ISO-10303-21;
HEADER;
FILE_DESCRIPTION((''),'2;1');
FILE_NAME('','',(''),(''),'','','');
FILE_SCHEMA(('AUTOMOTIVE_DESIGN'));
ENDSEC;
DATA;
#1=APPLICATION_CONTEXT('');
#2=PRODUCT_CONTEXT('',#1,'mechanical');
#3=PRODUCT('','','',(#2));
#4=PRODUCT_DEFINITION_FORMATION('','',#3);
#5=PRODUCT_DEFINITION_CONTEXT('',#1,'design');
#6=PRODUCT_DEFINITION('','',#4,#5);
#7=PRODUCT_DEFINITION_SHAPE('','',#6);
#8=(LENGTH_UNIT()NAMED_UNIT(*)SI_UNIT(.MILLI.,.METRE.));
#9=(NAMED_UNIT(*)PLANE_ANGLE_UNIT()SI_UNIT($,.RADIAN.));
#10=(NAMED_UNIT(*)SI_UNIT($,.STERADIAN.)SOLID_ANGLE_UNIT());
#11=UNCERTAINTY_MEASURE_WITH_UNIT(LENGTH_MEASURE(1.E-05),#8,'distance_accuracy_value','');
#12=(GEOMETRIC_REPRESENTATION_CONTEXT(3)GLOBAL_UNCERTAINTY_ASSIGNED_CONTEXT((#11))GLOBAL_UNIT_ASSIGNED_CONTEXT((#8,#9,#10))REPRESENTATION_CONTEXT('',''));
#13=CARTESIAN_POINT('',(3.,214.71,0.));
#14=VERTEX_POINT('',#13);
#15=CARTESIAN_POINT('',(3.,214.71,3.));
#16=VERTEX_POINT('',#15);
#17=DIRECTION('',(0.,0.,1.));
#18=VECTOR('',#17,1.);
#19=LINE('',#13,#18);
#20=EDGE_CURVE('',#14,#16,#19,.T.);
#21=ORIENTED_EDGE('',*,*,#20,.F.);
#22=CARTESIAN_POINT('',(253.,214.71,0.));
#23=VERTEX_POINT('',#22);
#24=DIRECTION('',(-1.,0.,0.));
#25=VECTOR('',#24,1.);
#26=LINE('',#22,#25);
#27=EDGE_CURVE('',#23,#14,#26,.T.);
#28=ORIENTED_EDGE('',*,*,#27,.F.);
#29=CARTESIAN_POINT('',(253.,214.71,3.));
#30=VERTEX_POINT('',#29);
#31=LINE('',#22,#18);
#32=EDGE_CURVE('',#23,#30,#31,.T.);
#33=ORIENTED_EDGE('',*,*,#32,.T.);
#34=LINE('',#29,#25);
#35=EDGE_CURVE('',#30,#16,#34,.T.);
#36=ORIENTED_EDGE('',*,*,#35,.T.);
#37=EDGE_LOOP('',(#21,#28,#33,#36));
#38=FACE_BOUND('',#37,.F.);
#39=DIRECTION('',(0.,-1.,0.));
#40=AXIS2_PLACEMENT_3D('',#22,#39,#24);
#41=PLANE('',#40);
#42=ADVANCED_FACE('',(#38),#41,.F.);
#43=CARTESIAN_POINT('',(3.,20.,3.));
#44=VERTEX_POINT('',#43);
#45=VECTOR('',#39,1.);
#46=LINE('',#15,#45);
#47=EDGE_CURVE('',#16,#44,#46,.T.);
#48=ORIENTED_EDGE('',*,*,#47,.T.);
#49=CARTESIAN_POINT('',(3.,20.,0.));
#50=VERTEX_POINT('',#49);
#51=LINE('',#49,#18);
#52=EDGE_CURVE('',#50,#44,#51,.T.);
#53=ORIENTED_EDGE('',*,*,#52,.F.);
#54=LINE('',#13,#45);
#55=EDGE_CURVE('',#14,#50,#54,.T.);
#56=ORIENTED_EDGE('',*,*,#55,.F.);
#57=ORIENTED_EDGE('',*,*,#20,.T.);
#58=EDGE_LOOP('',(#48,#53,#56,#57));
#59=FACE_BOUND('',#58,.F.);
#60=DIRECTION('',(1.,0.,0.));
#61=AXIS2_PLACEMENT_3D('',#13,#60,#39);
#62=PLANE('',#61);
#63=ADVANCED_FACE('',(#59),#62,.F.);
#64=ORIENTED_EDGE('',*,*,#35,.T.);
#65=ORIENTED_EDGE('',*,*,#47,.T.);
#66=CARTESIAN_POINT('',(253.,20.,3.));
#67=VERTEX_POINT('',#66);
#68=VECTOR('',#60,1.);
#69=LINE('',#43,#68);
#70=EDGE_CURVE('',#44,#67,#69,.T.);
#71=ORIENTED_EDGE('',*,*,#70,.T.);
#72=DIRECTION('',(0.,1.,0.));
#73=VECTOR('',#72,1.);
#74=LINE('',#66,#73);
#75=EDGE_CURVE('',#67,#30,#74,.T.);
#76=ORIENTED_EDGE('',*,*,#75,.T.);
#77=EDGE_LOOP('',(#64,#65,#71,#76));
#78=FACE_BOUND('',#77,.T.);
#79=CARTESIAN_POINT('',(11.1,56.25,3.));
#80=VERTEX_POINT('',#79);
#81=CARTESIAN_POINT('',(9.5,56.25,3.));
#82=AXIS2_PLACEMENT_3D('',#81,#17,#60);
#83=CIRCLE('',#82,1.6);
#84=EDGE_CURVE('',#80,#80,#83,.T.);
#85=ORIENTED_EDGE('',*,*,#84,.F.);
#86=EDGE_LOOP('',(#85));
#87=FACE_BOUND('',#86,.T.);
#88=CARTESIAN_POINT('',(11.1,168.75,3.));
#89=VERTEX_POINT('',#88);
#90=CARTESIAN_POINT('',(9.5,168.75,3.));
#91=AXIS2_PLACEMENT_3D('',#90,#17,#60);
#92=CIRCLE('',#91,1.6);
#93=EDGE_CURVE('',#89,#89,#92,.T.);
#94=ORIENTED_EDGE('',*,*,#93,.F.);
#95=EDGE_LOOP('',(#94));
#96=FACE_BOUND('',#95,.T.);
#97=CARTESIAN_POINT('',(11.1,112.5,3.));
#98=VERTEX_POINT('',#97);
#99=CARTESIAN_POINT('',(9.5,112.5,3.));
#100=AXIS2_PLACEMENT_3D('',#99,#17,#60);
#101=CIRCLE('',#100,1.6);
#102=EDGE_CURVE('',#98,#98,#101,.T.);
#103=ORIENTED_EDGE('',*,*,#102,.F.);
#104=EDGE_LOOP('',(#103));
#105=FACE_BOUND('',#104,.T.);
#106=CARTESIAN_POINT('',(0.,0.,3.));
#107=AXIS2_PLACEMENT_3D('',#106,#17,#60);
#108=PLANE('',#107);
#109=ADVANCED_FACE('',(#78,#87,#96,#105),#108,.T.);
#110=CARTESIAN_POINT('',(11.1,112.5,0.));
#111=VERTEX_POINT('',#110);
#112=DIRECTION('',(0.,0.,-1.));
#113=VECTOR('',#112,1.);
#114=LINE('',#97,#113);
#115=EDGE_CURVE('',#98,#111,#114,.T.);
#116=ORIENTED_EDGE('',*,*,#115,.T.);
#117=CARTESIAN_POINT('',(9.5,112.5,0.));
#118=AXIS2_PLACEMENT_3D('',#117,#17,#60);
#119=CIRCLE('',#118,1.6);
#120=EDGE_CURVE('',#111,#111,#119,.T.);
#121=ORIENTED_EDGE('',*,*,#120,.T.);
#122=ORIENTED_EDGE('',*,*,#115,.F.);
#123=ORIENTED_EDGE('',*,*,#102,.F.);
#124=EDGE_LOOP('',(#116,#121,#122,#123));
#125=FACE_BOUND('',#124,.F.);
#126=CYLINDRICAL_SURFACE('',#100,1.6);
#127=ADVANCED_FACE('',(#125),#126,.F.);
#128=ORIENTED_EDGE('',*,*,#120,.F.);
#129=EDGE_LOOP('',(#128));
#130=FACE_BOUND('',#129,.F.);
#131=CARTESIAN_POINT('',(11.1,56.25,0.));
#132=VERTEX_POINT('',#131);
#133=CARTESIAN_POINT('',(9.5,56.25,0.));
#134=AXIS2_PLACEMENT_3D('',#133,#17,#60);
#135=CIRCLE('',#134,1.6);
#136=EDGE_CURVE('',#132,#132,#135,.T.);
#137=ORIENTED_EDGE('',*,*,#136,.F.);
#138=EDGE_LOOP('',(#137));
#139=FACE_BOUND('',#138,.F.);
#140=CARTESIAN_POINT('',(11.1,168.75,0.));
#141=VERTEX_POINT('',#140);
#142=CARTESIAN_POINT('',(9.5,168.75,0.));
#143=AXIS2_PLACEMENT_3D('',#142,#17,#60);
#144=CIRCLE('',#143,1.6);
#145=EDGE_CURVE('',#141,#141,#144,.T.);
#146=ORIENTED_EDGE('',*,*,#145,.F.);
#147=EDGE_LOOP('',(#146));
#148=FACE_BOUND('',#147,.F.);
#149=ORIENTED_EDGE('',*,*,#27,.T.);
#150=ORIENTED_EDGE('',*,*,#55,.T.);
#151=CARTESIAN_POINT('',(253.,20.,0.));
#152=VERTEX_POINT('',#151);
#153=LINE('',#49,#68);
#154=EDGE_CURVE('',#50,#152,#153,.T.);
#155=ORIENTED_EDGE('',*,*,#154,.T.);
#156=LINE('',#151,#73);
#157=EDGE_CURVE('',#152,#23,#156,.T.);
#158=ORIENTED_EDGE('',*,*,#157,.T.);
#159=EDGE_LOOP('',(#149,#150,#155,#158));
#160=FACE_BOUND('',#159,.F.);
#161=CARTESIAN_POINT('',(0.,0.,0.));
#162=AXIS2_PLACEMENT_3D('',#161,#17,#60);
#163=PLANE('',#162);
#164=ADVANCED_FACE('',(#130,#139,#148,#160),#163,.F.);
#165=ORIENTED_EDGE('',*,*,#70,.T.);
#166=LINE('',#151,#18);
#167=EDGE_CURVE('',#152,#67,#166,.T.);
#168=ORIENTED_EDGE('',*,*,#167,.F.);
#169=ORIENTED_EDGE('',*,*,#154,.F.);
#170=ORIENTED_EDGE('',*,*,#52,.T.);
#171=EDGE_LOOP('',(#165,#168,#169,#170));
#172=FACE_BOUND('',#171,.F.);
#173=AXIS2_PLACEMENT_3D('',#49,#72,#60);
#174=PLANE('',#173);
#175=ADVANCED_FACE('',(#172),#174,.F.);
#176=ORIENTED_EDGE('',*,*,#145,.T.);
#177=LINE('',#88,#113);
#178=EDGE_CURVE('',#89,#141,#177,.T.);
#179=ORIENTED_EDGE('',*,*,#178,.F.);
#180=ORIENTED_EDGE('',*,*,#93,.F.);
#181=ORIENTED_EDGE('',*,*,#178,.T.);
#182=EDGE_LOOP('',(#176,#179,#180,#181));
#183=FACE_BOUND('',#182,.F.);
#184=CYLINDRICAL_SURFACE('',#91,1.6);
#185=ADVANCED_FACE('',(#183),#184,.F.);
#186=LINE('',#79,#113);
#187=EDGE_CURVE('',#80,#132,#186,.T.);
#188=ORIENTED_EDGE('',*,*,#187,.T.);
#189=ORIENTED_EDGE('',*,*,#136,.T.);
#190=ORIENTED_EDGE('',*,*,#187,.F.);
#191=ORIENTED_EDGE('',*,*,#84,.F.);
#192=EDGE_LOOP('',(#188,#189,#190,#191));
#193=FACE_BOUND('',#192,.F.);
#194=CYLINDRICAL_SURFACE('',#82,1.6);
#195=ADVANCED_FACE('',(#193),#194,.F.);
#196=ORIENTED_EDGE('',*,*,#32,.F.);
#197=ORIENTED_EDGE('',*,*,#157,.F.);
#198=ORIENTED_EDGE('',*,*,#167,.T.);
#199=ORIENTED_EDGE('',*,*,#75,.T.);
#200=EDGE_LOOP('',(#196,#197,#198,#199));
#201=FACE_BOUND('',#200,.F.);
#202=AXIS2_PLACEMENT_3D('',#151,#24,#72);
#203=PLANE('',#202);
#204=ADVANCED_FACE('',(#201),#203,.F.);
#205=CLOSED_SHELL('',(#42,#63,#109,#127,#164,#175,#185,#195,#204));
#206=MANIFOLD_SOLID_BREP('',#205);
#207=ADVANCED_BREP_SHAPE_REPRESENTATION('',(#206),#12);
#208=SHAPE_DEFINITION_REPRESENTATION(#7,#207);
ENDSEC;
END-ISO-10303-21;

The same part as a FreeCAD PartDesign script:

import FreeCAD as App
import Part
import Sketcher
from FreeCAD import Vector

doc = App.newDocument("Part")
body = doc.addObject("PartDesign::Body", "Body")

sketch1 = body.newObject("Sketcher::SketchObject", "Sketch")
sketch1.AttachmentSupport = (doc.getObject("XY_Plane"), [""])
sketch1.MapMode = "FlatFace"
sketch1.addGeometry(Part.LineSegment(Vector(3, 215, 0), Vector(3, 20, 0)), False)
sketch1.addGeometry(Part.LineSegment(Vector(3, 20, 0), Vector(253, 20, 0)), False)
sketch1.addGeometry(Part.LineSegment(Vector(253, 20, 0), Vector(253, 215, 0)), False)
sketch1.addGeometry(Part.LineSegment(Vector(253, 215, 0), Vector(3, 215, 0)), False)
sketch1.addConstraint(Sketcher.Constraint("Coincident", 0, 2, 1, 1))
sketch1.addConstraint(Sketcher.Constraint("Coincident", 1, 2, 2, 1))
sketch1.addConstraint(Sketcher.Constraint("Coincident", 2, 2, 3, 1))
sketch1.addConstraint(Sketcher.Constraint("Coincident", 3, 2, 0, 1))
sketch1.addConstraint(Sketcher.Constraint("Vertical", 0))
sketch1.addConstraint(Sketcher.Constraint("Horizontal", 1))
sketch1.addConstraint(Sketcher.Constraint("Vertical", 2))
sketch1.addConstraint(Sketcher.Constraint("Horizontal", 3))
sketch1.addConstraint(Sketcher.Constraint("DistanceX", 1, 1, 1, 2, 250.0))
sketch1.addConstraint(Sketcher.Constraint("DistanceX", -1, 1, 0, 2, 3.0))
sketch1.addConstraint(Sketcher.Constraint("DistanceY", -1, 1, 0, 2, 20.0))
sketch1.addConstraint(Sketcher.Constraint("DistanceY", 0, 2, 0, 1, 194.71))
pad1 = body.newObject("PartDesign::Pad", "Pad")
pad1.Profile = sketch1
pad1.Length = 3

sketch2 = body.newObject("Sketcher::SketchObject", "Sketch001")
sketch2.AttachmentSupport = (doc.getObject("XY_Plane"), [""])
sketch2.MapMode = "FlatFace"
sketch2.AttachmentOffset = App.Placement(Vector(0, 0, 3), App.Rotation())
sketch2.addGeometry(Part.Circle(Vector(9.5, 168.8, 0), Vector(0, 0, 1), 1.6), False)
sketch2.addGeometry(Part.Circle(Vector(9.5, 112.5, 0), Vector(0, 0, 1), 1.6), False)
sketch2.addGeometry(Part.Circle(Vector(9.5, 56.2, 0), Vector(0, 0, 1), 1.6), False)
sketch2.addConstraint(Sketcher.Constraint("Equal", 0, 1))
sketch2.addConstraint(Sketcher.Constraint("Equal", 1, 2))
sketch2.addConstraint(Sketcher.Constraint("Vertical", 0, 3, 1, 3))
sketch2.addConstraint(Sketcher.Constraint("Vertical", 1, 3, 2, 3))
sketch2.addConstraint(Sketcher.Constraint("Diameter", 0, 3.2))
sketch2.addConstraint(Sketcher.Constraint("DistanceX", -1, 1, 0, 3, 9.5))
sketch2.addConstraint(Sketcher.Constraint("DistanceY", -1, 1, 1, 3, 112.5))
sketch2.addConstraint(Sketcher.Constraint("DistanceY", 2, 3, 0, 3, 112.5))
sketch2.addConstraint(Sketcher.Constraint("DistanceY", -1, 1, 0, 3, 168.75))
pocket1 = body.newObject("PartDesign::Pocket", "Pocket")
pocket1.Profile = sketch2
pocket1.Type = "ThroughAll"

doc.recompute()
